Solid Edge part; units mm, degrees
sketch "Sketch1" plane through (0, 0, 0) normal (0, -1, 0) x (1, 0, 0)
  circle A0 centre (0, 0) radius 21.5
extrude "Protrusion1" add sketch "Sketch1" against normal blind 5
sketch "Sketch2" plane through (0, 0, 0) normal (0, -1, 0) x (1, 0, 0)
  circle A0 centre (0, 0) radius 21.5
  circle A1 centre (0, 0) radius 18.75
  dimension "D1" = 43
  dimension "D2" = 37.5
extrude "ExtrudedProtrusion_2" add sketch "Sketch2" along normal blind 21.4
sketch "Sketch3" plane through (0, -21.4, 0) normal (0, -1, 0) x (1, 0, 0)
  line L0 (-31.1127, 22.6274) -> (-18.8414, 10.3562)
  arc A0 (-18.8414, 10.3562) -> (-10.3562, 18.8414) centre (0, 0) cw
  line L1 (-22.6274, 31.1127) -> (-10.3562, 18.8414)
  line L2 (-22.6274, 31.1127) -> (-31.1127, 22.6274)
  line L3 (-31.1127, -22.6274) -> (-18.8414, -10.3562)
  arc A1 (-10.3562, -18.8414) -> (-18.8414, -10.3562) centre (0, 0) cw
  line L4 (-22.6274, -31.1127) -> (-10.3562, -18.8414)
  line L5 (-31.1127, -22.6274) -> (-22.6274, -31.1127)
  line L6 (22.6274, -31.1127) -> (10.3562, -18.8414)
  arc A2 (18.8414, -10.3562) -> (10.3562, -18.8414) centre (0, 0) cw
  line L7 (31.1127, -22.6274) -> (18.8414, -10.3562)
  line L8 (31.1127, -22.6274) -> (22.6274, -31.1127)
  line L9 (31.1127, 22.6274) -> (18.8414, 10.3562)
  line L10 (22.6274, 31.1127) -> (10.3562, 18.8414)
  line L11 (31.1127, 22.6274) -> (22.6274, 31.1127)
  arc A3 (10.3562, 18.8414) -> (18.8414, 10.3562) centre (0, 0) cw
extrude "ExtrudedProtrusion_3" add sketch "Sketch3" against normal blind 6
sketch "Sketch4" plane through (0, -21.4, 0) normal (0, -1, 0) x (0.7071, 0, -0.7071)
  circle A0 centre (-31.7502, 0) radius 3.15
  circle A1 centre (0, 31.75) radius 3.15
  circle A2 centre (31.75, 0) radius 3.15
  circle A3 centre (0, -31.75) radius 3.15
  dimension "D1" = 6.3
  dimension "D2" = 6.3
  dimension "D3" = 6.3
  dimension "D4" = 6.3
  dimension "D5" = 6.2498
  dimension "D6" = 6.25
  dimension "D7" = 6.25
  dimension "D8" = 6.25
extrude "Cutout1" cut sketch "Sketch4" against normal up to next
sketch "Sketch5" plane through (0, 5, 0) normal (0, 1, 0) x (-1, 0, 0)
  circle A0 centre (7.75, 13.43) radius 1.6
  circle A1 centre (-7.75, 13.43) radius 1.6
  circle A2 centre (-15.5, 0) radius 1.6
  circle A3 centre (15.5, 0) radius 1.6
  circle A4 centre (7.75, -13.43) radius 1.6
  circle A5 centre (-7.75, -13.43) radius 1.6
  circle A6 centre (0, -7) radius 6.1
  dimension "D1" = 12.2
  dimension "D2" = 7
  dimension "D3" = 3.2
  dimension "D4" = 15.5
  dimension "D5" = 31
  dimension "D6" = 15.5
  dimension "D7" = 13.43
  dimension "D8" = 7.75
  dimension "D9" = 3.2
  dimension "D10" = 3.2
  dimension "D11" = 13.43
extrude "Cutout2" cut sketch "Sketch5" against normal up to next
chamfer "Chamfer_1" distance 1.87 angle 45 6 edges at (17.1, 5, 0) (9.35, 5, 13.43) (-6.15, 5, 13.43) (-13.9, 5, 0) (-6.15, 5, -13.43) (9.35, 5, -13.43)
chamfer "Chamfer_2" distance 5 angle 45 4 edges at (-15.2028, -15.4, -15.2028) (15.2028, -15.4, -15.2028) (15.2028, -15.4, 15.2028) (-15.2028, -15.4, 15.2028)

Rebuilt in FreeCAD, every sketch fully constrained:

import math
import FreeCAD as App
import Part
import Sketcher
from FreeCAD import Vector
Q = App.Units.Quantity


def edges_at(feature, points):
    """Names of the edges that pass closest to the given points."""
    edges = feature.Shape.Edges
    near = lambda p: min(range(len(edges)), key=lambda i: edges[i].distToShape(Part.Vertex(*p))[0])
    return sorted({f"Edge{near(p) + 1}" for p in points})

doc = App.newDocument("Part")
params = doc.addObject("Spreadsheet::Sheet", "Params")
for row, (alias, value) in enumerate([
    ("sketch1_diameter", "43 mm"),
    ("pad1_length", "5 mm"),
    ("sketch2_diameter", "43 mm"),
    ("sketch2_diameter2", "37.5 mm"),
    ("pad2_length", "21.4 mm"),
    ("sketch3_radius", "21.5 mm"),
    ("sketch3_length", "12 mm"),
    ("pad3_length", "6 mm"),
    ("sketch4_diameter", "6.3 mm"),
    ("sketch5_diameter", "3.2 mm"),
    ("sketch5_diameter2", "12.2 mm"),
    ("chamfer_size", "1.87 mm"),
    ("chamfer2_size", "5 mm"),
], start=1):
    params.set(f"A{row}", alias)
    params.set(f"B{row}", "=" + value)
    params.setAlias(f"B{row}", alias)

body = doc.addObject("PartDesign::Body", "Body")

# Sketch on XZ plane
sketch1 = body.newObject("Sketcher::SketchObject", "Sketch")
sketch1.AttachmentSupport = (doc.getObject("XZ_Plane"), [""])
sketch1.MapMode = "FlatFace"
sketch1.addGeometry(Part.Circle(Vector(0, 0, 0), Vector(0, 0, 1), 22), False)
sketch1.addConstraint([
    Sketcher.Constraint("Coincident", 0, 3, -1, 1),
    Sketcher.Constraint("Diameter", 0, Q("43 mm")),
])
sketch1.setExpression("Constraints[1]", "Params.sketch1_diameter")
pad1 = body.newObject("PartDesign::Pad", "Pad")
pad1.Profile = sketch1
pad1.setExpression("Length", "Params.pad1_length")
pad1.Reversed = True

# Sketch on XZ plane
sketch2 = body.newObject("Sketcher::SketchObject", "Sketch001")
sketch2.AttachmentSupport = (doc.getObject("XZ_Plane"), [""])
sketch2.MapMode = "FlatFace"
sketch2.addGeometry([
    Part.Circle(Vector(0, 0, 0), Vector(0, 0, 1), 22),
    Part.Circle(Vector(0, 0, 0), Vector(0, 0, 1), 19),
], False)
sketch2.addConstraint([
    Sketcher.Constraint("Coincident", 0, 3, -1, 1),
    Sketcher.Constraint("Coincident", 1, 3, -1, 1),
    Sketcher.Constraint("Diameter", 0, Q("43 mm")),
    Sketcher.Constraint("Diameter", 1, Q("37.5 mm")),
])
sketch2.setExpression("Constraints[2]", "Params.sketch2_diameter")
sketch2.setExpression("Constraints[3]", "Params.sketch2_diameter2")
pad2 = body.newObject("PartDesign::Pad", "Pad001")
pad2.Profile = sketch2
pad2.setExpression("Length", "Params.pad2_length")

# Sketch on XZ plane
sketch3 = body.newObject("Sketcher::SketchObject", "Sketch002")
sketch3.AttachmentSupport = (doc.getObject("XZ_Plane"), [""])
sketch3.MapMode = "FlatFace"
sketch3.AttachmentOffset = App.Placement(Vector(0, 0, 21.4), App.Rotation())
sketch3.addGeometry([
    Part.LineSegment(Vector(-23, 31, 0), Vector(-31, 23, 0)),  # 0
    Part.LineSegment(Vector(-31, 23, 0), Vector(-19, 10, 0)),  # 1
    Part.ArcOfCircle(Part.Circle(Vector(0, 0, 0), Vector(0, 0, 1), 21), math.radians(119), math.radians(151)),  # 2
    Part.LineSegment(Vector(-10, 19, 0), Vector(-23, 31, 0)),  # 3
    Part.LineSegment(Vector(-19, -10, 0), Vector(-31, -23, 0)),  # 4
    Part.LineSegment(Vector(-31, -23, 0), Vector(-23, -31, 0)),  # 5
    Part.LineSegment(Vector(-23, -31, 0), Vector(-10, -19, 0)),  # 6
    Part.ArcOfCircle(Part.Circle(Vector(0, 0, 0), Vector(0, 0, 1), 21), math.radians(-151), math.radians(-119)),  # 7
    Part.LineSegment(Vector(10, -19, 0), Vector(23, -31, 0)),  # 8
    Part.LineSegment(Vector(23, -31, 0), Vector(31, -23, 0)),  # 9
    Part.LineSegment(Vector(31, -23, 0), Vector(19, -10, 0)),  # 10
    Part.ArcOfCircle(Part.Circle(Vector(0, 0, 0), Vector(0, 0, 1), 21), math.radians(-61), math.radians(-29)),  # 11
    Part.LineSegment(Vector(19, 10, 0), Vector(31, 23, 0)),  # 12
    Part.LineSegment(Vector(31, 23, 0), Vector(23, 31, 0)),  # 13
    Part.LineSegment(Vector(23, 31, 0), Vector(10, 19, 0)),  # 14
    Part.ArcOfCircle(Part.Circle(Vector(0, 0, 0), Vector(0, 0, 1), 21), math.radians(29), math.radians(61)),  # 15
], False)
sketch3.addConstraint([
    Sketcher.Constraint("Coincident", 0, 2, 1, 1),
    Sketcher.Constraint("Coincident", 1, 2, 2, 2),
    Sketcher.Constraint("Coincident", 2, 1, 3, 1),
    Sketcher.Constraint("Coincident", 3, 2, 0, 1),
    Sketcher.Constraint("Coincident", 4, 2, 5, 1),
    Sketcher.Constraint("Coincident", 5, 2, 6, 1),
    Sketcher.Constraint("Coincident", 6, 2, 7, 2),
    Sketcher.Constraint("Coincident", 7, 1, 4, 1),
    Sketcher.Constraint("Coincident", 8, 2, 9, 1),
    Sketcher.Constraint("Coincident", 9, 2, 10, 1),
    Sketcher.Constraint("Coincident", 10, 2, 11, 2),
    Sketcher.Constraint("Coincident", 11, 1, 8, 1),
    Sketcher.Constraint("Coincident", 12, 2, 13, 1),
    Sketcher.Constraint("Coincident", 13, 2, 14, 1),
    Sketcher.Constraint("Coincident", 14, 2, 15, 2),
    Sketcher.Constraint("Coincident", 15, 1, 12, 1),
    Sketcher.Constraint("Coincident", 2, 3, -1, 1),
    Sketcher.Constraint("Coincident", 7, 3, -1, 1),
    Sketcher.Constraint("Coincident", 11, 3, -1, 1),
    Sketcher.Constraint("Coincident", 15, 3, -1, 1),
    Sketcher.Constraint("Equal", 2, 7),
    Sketcher.Constraint("Equal", 7, 11),
    Sketcher.Constraint("Equal", 11, 15),
    Sketcher.Constraint("Symmetric", 3, 2, 8, 2, -1, 1),
    Sketcher.Constraint("Symmetric", 0, 2, 9, 2, -1, 1),
    Sketcher.Constraint("Symmetric", 4, 2, 12, 2, -1, 1),
    Sketcher.Constraint("Symmetric", 5, 2, 13, 2, -1, 1),
    Sketcher.Constraint("Symmetric", 5, 2, 8, 2, -2),
    Sketcher.Constraint("Symmetric", 4, 2, 9, 2, -2),
    Sketcher.Constraint("Perpendicular", 0, 1),
    Sketcher.Constraint("Parallel", 1, 3),
    Sketcher.Constraint("Perpendicular", 3, 4),
    Sketcher.Constraint("Perpendicular", 4, 5),
    Sketcher.Constraint("Perpendicular", 5, 6),
    Sketcher.Constraint("Perpendicular", 6, 8),
    Sketcher.Constraint("Perpendicular", 9, 10),
    Sketcher.Constraint("Perpendicular", 10, 12),
    Sketcher.Constraint("Perpendicular", 13, 14),
    Sketcher.Constraint("Equal", 1, 3),
    Sketcher.Constraint("Radius", 2, Q("21.5 mm")),
    Sketcher.Constraint("Distance", 0, Q("12 mm")),
    Sketcher.Constraint("DistanceY", 2, 1, 0, 2, Q("3.786 mm")),
])
sketch3.setExpression("Constraints[39]", "Params.sketch3_radius")
sketch3.setExpression("Constraints[40]", "Params.sketch3_length")
pad3 = body.newObject("PartDesign::Pad", "Pad002")
pad3.Profile = sketch3
pad3.setExpression("Length", "Params.pad3_length")
pad3.Reversed = True

# Sketch on XZ plane
sketch4 = body.newObject("Sketcher::SketchObject", "Sketch003")
sketch4.AttachmentSupport = (doc.getObject("XZ_Plane"), [""])
sketch4.MapMode = "FlatFace"
sketch4.AttachmentOffset = App.Placement(Vector(0, 0, 21.4), App.Rotation())
sketch4.addGeometry([
    Part.Circle(Vector(-22.5, 22.5, 0), Vector(0, 0, 1), 3.1),
    Part.Circle(Vector(22.5, 22.5, 0), Vector(0, 0, 1), 3.1),
    Part.Circle(Vector(22.5, -22.5, 0), Vector(0, 0, 1), 3.1),
    Part.Circle(Vector(-22.5, -22.5, 0), Vector(0, 0, 1), 3.1),
], False)
sketch4.addConstraint([
    Sketcher.Constraint("Equal", 0, 1),
    Sketcher.Constraint("Equal", 1, 2),
    Sketcher.Constraint("Equal", 2, 3),
    Sketcher.Constraint("Symmetric", 0, 3, 2, 3, -1, 1),
    Sketcher.Constraint("Symmetric", 1, 3, 3, 3, -1, 1),
    Sketcher.Constraint("Symmetric", 0, 3, 1, 3, -2),
    Sketcher.Constraint("Diameter", 0, Q("6.3 mm")),
    Sketcher.Constraint("DistanceX", 0, 3, -1, 1, Q("22.4508 mm")),
    Sketcher.Constraint("DistanceY", -1, 1, 0, 3, Q("22.4508 mm")),
])
sketch4.setExpression("Constraints[6]", "Params.sketch4_diameter")
pocket1 = body.newObject("PartDesign::Pocket", "Pocket")
pocket1.Profile = sketch4
pocket1.Type = "UpToFirst"

# Sketch on XZ plane
sketch5 = body.newObject("Sketcher::SketchObject", "Sketch004")
sketch5.AttachmentSupport = (doc.getObject("XZ_Plane"), [""])
sketch5.MapMode = "FlatFace"
sketch5.AttachmentOffset = App.Placement(Vector(0, 0, -5), App.Rotation())
sketch5.addGeometry([
    Part.Circle(Vector(-7.8, 13.4, 0), Vector(0, 0, 1), 1.6),  # 0
    Part.Circle(Vector(7.8, 13.4, 0), Vector(0, 0, 1), 1.6),  # 1
    Part.Circle(Vector(15.5, 0, 0), Vector(0, 0, 1), 1.6),  # 2
    Part.Circle(Vector(-15.5, 0, 0), Vector(0, 0, 1), 1.6),  # 3
    Part.Circle(Vector(-7.8, -13.4, 0), Vector(0, 0, 1), 1.6),  # 4
    Part.Circle(Vector(7.8, -13.4, 0), Vector(0, 0, 1), 1.6),  # 5
    Part.Circle(Vector(0, -7, 0), Vector(0, 0, 1), 6.1),  # 6
], False)
sketch5.addConstraint([
    Sketcher.Constraint("Equal", 0, 1),
    Sketcher.Constraint("Equal", 1, 2),
    Sketcher.Constraint("Equal", 2, 3),
    Sketcher.Constraint("Equal", 3, 4),
    Sketcher.Constraint("Equal", 4, 5),
    Sketcher.Constraint("Symmetric", 2, 3, 3, 3, -1, 1),
    Sketcher.Constraint("Symmetric", 1, 3, 4, 3, -1, 1),
    Sketcher.Constraint("Symmetric", 0, 3, 5, 3, -1, 1),
    Sketcher.Constraint("Symmetric", 0, 3, 1, 3, -2),
    Sketcher.Constraint("PointOnObject", 2, 3, -1),
    Sketcher.Constraint("PointOnObject", 6, 3, -2),
    Sketcher.Constraint("Diameter", 0, Q("3.2 mm")),
    Sketcher.Constraint("Diameter", 6, Q("12.2 mm")),
    Sketcher.Constraint("DistanceY", 6, 3, -1, 1, Q("7 mm")),
    Sketcher.Constraint("DistanceX", 3, 3, 2, 3, Q("31 mm")),
    Sketcher.Constraint("DistanceX", 0, 3, 1, 3, Q("15.5 mm")),
    Sketcher.Constraint("DistanceY", -1, 1, 0, 3, Q("13.43 mm")),
])
sketch5.setExpression("Constraints[11]", "Params.sketch5_diameter")
sketch5.setExpression("Constraints[12]", "Params.sketch5_diameter2")
pocket2 = body.newObject("PartDesign::Pocket", "Pocket001")
pocket2.Profile = sketch5
pocket2.Type = "UpToFirst"
pocket2.Reversed = True
doc.recompute()

chamfer = body.newObject("PartDesign::Chamfer", "Chamfer")
chamfer.Base = (pocket2, edges_at(pocket2, [
    (17.1, 5, 0),
    (9.35, 5, 13.43),
    (-6.15, 5, 13.43),
    (-13.9, 5, 0),
    (-6.15, 5, -13.43),
    (9.35, 5, -13.43),
]))
chamfer.setExpression("Size", "Params.chamfer_size")
doc.recompute()

chamfer2 = body.newObject("PartDesign::Chamfer", "Chamfer001")
chamfer2.Base = (chamfer, edges_at(chamfer, [
    (-15.203, -15.4, -15.203),
    (15.203, -15.4, -15.203),
    (15.203, -15.4, 15.203),
    (-15.203, -15.4, 15.203),
]))
chamfer2.setExpression("Size", "Params.chamfer2_size")

doc.recompute()
